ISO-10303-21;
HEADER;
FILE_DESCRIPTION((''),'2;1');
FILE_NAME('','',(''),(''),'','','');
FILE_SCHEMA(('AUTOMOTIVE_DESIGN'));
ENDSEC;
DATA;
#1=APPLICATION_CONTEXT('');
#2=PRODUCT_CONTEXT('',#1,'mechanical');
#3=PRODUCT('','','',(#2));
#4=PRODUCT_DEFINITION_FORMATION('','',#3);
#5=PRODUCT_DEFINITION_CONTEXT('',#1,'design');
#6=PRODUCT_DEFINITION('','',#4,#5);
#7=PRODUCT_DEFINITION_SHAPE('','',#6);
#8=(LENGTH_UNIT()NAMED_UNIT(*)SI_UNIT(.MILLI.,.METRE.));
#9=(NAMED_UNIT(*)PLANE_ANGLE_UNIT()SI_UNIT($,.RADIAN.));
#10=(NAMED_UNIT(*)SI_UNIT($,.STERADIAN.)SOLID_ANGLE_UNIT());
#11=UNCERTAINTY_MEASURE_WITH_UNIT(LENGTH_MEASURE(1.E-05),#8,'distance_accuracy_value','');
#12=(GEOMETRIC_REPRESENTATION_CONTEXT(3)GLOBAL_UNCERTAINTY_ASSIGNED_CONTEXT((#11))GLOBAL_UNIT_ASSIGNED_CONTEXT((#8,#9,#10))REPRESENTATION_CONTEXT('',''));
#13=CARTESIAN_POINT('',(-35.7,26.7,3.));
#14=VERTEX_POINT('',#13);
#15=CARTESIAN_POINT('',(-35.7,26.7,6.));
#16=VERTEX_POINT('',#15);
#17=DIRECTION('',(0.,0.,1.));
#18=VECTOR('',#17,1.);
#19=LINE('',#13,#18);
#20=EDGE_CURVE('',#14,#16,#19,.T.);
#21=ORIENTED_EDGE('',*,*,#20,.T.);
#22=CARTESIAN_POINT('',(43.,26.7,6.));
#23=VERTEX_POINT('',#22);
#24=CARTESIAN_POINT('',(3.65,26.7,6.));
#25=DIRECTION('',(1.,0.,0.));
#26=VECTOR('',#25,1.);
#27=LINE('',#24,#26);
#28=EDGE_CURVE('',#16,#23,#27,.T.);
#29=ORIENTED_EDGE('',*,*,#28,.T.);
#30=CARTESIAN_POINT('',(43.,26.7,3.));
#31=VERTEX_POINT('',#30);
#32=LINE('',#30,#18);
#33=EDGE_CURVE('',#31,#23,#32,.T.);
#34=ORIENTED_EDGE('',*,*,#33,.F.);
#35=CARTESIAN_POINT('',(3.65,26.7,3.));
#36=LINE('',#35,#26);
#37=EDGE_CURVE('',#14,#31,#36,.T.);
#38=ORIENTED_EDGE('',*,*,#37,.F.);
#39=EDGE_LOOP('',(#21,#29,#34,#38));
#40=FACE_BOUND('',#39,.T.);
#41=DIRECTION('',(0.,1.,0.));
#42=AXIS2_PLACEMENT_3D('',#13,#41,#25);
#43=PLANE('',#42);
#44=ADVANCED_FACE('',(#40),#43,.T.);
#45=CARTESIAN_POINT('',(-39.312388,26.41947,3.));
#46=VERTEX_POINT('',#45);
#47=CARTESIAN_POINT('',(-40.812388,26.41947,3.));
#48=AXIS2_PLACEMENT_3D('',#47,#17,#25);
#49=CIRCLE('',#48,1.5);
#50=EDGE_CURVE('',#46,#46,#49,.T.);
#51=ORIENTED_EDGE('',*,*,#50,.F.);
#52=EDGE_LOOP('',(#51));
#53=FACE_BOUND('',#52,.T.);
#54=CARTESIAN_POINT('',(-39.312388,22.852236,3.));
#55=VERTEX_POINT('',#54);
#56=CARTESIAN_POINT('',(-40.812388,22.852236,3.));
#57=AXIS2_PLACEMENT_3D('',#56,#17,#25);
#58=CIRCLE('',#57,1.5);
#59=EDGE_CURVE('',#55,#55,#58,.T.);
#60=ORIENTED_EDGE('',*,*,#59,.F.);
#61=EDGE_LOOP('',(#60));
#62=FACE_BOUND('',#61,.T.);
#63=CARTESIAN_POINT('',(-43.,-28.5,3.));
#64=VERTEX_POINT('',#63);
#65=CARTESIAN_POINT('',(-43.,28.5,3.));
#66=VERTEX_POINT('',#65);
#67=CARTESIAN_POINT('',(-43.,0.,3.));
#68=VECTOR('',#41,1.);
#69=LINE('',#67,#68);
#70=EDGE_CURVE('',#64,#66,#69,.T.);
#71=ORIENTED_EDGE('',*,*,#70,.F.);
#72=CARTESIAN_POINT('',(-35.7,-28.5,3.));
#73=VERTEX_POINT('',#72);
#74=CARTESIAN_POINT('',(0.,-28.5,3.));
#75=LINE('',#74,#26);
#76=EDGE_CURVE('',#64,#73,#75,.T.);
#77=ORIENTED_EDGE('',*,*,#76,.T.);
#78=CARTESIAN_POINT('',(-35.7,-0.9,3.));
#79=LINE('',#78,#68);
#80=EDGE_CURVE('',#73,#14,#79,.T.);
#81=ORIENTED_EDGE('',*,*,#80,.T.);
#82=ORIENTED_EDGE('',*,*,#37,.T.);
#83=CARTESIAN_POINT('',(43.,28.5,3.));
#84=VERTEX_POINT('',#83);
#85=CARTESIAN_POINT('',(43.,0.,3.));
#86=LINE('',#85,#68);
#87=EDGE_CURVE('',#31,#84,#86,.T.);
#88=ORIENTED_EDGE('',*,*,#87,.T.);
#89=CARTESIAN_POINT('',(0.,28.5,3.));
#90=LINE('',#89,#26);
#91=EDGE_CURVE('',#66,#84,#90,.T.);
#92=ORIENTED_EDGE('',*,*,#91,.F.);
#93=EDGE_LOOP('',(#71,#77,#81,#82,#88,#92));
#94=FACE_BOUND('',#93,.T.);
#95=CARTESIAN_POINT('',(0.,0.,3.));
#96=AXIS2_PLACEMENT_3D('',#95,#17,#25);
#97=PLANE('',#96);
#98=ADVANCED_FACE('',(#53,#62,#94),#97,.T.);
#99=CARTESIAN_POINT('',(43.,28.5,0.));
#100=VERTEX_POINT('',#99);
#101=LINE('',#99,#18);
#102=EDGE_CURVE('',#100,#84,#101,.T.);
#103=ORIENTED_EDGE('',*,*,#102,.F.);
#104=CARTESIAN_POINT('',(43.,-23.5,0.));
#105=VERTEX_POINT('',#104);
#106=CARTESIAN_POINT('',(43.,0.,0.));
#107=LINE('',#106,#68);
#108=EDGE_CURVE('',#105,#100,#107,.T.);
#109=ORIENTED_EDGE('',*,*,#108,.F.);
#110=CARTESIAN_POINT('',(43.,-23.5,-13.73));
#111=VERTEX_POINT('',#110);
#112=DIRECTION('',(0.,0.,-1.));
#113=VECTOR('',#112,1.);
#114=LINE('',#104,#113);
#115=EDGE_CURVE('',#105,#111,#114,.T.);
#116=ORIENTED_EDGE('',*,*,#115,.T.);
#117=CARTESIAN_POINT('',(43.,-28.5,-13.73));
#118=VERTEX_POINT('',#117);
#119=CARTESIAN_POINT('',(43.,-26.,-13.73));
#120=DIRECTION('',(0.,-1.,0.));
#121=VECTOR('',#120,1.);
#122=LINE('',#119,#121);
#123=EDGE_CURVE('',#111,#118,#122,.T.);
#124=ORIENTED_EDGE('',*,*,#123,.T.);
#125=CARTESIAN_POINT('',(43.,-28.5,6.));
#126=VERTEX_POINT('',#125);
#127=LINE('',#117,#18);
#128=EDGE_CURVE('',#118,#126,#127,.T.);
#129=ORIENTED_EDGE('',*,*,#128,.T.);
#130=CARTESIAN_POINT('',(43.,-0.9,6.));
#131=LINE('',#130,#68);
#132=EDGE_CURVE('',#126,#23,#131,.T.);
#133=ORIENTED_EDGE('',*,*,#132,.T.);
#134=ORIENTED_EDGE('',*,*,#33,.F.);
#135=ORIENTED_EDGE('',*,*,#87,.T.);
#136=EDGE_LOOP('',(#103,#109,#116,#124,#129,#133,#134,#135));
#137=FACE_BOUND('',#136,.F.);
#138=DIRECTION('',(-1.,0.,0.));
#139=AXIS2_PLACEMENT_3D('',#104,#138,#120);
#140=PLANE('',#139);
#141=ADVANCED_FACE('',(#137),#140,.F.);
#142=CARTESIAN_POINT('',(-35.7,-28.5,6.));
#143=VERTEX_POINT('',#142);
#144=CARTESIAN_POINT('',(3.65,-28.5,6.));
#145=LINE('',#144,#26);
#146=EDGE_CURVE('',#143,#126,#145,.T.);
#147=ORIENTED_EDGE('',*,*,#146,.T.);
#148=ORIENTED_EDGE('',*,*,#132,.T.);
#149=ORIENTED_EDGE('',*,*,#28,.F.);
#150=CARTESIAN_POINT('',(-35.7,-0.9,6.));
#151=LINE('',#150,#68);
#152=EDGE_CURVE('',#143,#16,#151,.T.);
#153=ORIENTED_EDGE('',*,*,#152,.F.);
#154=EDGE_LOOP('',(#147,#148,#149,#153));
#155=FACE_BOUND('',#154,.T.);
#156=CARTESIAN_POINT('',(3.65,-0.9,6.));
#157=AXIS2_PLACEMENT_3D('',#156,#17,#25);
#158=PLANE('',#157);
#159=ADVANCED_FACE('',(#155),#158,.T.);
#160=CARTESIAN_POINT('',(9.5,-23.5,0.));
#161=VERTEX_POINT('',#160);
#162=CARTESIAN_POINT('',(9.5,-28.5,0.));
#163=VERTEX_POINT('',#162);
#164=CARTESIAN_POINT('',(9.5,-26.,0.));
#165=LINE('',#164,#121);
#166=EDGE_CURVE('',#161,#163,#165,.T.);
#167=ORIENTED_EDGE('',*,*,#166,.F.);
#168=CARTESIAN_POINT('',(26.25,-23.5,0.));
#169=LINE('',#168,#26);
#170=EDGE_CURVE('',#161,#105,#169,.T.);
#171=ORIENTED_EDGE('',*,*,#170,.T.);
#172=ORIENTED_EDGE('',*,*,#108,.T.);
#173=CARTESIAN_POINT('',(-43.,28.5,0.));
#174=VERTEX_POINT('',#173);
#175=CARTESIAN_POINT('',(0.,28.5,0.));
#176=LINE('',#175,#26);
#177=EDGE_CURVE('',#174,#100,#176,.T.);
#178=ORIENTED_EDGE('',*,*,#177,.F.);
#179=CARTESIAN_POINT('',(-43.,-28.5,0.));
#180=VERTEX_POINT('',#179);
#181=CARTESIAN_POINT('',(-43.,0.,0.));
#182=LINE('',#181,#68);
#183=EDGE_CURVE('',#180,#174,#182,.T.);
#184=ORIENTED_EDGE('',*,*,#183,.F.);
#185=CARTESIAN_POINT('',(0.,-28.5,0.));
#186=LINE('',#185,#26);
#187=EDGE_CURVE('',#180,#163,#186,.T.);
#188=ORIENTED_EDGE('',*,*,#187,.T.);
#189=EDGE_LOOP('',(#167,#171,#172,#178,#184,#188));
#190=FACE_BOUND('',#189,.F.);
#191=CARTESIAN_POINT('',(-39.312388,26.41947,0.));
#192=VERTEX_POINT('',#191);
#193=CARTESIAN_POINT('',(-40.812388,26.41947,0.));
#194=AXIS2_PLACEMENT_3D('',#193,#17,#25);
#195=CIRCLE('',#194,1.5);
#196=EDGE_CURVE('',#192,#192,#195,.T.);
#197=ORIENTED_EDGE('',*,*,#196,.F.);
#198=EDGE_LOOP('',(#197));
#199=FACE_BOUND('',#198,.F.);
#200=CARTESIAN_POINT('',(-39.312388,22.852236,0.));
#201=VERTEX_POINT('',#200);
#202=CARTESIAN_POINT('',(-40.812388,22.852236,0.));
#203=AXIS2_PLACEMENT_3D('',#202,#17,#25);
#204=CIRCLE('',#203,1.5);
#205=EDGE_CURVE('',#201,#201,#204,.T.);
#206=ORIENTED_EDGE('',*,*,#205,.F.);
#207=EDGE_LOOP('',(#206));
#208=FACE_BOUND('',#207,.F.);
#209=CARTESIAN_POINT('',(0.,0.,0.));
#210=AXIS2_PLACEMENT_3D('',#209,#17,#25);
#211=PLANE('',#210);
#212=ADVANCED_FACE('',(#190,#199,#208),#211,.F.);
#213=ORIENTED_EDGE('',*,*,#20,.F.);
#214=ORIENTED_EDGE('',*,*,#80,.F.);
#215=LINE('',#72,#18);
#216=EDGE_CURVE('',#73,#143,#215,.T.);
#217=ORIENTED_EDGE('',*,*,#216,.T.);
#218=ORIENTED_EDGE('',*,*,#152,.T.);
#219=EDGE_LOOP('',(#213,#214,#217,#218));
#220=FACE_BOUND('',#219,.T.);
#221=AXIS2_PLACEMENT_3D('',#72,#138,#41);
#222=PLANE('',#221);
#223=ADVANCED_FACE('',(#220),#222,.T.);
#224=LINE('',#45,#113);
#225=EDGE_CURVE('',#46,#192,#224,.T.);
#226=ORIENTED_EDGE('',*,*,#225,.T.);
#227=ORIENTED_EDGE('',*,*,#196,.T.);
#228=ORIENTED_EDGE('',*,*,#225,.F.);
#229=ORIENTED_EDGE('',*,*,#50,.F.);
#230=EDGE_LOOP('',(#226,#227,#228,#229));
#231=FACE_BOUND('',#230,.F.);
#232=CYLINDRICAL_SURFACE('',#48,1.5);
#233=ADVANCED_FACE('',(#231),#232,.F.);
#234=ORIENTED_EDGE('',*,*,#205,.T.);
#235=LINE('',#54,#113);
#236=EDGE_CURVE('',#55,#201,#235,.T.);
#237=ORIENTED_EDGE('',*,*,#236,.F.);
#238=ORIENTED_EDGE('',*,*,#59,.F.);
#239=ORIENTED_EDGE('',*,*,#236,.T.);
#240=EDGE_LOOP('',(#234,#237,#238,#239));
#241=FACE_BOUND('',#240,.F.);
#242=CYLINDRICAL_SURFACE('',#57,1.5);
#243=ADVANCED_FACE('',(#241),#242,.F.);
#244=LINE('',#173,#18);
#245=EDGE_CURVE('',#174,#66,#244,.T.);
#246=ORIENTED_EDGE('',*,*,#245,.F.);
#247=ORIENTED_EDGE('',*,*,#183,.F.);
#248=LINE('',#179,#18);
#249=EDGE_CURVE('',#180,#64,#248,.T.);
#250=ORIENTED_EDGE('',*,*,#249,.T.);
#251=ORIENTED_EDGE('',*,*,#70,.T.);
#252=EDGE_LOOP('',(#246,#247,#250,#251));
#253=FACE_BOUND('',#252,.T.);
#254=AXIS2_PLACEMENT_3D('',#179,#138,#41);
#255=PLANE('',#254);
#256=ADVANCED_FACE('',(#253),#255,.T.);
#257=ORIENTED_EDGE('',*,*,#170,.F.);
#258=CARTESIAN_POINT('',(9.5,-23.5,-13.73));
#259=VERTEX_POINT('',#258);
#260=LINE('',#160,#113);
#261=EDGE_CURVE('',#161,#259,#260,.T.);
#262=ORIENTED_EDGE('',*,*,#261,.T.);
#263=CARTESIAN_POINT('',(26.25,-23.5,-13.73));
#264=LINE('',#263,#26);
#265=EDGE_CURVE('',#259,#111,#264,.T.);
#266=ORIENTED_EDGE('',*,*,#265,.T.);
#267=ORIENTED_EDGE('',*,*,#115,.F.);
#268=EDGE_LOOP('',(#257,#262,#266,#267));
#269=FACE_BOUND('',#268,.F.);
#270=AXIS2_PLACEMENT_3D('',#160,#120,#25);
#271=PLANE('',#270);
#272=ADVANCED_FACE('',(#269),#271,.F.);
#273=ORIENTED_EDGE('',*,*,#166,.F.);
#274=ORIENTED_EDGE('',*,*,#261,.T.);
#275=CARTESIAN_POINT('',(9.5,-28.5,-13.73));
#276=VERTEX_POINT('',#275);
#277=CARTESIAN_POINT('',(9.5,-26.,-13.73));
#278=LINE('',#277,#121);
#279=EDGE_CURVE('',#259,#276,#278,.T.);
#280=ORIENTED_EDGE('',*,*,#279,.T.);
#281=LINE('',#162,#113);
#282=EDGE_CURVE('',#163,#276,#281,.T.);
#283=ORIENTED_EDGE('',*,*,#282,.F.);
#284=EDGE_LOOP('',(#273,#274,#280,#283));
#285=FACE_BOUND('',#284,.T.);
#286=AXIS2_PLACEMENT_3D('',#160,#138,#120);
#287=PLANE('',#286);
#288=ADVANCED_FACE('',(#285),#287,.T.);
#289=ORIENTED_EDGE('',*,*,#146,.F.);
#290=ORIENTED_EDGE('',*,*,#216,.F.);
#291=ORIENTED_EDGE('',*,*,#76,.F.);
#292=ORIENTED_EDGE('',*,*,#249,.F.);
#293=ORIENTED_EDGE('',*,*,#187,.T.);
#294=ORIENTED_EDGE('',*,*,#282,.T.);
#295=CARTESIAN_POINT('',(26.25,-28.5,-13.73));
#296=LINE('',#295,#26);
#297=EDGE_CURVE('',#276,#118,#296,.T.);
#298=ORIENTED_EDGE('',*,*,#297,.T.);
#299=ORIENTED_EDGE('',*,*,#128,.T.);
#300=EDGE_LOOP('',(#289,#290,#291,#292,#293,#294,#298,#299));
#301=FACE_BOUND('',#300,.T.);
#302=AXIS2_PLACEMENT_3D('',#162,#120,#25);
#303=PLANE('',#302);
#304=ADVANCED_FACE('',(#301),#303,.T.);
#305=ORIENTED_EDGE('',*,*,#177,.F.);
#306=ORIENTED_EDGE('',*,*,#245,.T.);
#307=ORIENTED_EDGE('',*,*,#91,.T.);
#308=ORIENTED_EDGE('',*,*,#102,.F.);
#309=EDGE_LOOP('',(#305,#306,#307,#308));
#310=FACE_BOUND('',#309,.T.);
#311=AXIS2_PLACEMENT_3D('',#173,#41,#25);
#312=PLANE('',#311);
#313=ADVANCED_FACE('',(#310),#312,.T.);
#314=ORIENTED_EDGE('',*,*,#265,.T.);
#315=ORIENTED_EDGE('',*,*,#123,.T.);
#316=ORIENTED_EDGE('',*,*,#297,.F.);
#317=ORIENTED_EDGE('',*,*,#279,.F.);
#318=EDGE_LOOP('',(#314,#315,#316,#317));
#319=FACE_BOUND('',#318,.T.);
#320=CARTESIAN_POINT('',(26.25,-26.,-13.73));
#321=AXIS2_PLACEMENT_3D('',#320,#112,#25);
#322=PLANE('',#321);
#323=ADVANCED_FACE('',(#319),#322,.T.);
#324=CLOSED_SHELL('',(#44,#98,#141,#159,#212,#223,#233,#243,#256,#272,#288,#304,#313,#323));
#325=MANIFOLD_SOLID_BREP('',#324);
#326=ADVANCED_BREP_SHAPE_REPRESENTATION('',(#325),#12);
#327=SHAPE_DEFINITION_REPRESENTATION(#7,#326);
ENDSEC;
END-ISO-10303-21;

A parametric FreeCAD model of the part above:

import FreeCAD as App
import Part
import Sketcher

V = App.Vector


def add_polygon(sketch, points):
    """Adds a closed chain of lines whose ends are joined by coincident constraints."""
    first, n = sketch.GeometryCount, len(points)
    for a, b in zip(points, points[1:] + points[:1]):
        sketch.addGeometry(Part.LineSegment(App.Vector(*a, 0), App.Vector(*b, 0)), False)
    for i in range(n):
        sketch.addConstraint(Sketcher.Constraint("Coincident", first + i, 2, first + (i + 1) % n, 1))

doc = App.newDocument("Part")
body = doc.addObject("PartDesign::Body", "Body")

sketch1 = body.newObject("Sketcher::SketchObject", "Sketch")
sketch1.AttachmentSupport = (doc.getObject("XY_Plane"), [""])
sketch1.MapMode = "FlatFace"
add_polygon(sketch1, [(-43, 28.5), (-43, -28.5), (43, -28.5), (43, 28.5)])
sketch1.addConstraint(Sketcher.Constraint("Vertical", 0))
sketch1.addConstraint(Sketcher.Constraint("Horizontal", 1))
sketch1.addConstraint(Sketcher.Constraint("Vertical", 2))
sketch1.addConstraint(Sketcher.Constraint("Horizontal", 3))
sketch1.addConstraint(Sketcher.Constraint("Symmetric", 0, 2, 2, 2, -1, 1))
sketch1.addConstraint(Sketcher.Constraint("DistanceX", 1, 1, 1, 2, 86.0))
sketch1.addConstraint(Sketcher.Constraint("DistanceY", 0, 2, 0, 1, 57.0))
pad1 = body.newObject("PartDesign::Pad", "Pad")
pad1.Profile = sketch1
pad1.Length = 3

sketch2 = body.newObject("Sketcher::SketchObject", "Sketch001")
sketch2.AttachmentSupport = (doc.getObject("XY_Plane"), [""])
sketch2.MapMode = "FlatFace"
sketch2.AttachmentOffset = App.Placement(V(0, 0, 3), App.Rotation())
add_polygon(sketch2, [(-35.7, 26.7), (-35.7, -28.5), (43, -28.5), (43, 26.7)])
sketch2.addConstraint(Sketcher.Constraint("Vertical", 0))
sketch2.addConstraint(Sketcher.Constraint("Horizontal", 1))
sketch2.addConstraint(Sketcher.Constraint("Vertical", 2))
sketch2.addConstraint(Sketcher.Constraint("Horizontal", 3))
sketch2.addConstraint(Sketcher.Constraint("DistanceX", 1, 1, 1, 2, 78.7))
sketch2.addConstraint(Sketcher.Constraint("DistanceY", 0, 2, 0, 1, 55.2))
sketch2.addConstraint(Sketcher.Constraint("DistanceX", -1, 1, 1, 2, 43.0))
sketch2.addConstraint(Sketcher.Constraint("DistanceY", 0, 2, -1, 1, 28.5))
pad2 = body.newObject("PartDesign::Pad", "Pad001")
pad2.Profile = sketch2
pad2.Length = 3

sketch3 = body.newObject("Sketcher::SketchObject", "Sketch002")
sketch3.AttachmentSupport = (doc.getObject("XY_Plane"), [""])
sketch3.MapMode = "FlatFace"
sketch3.AttachmentOffset = App.Placement(V(0, 0, 3), App.Rotation())
sketch3.addGeometry(Part.Circle(V(-40.812388, 26.41947, 0), V(0, 0, 1), 1.5), False)
sketch3.addGeometry(Part.Circle(V(-40.812388, 22.852236, 0), V(0, 0, 1), 1.5), False)
sketch3.addConstraint(Sketcher.Constraint("Equal", 0, 1))
sketch3.addConstraint(Sketcher.Constraint("Vertical", 0, 3, 1, 3))
sketch3.addConstraint(Sketcher.Constraint("Diameter", 0, 3.0))
sketch3.addConstraint(Sketcher.Constraint("DistanceY", -1, 1, 0, 3, 26.41947))
sketch3.addConstraint(Sketcher.Constraint("DistanceX", 0, 3, -1, 1, 40.812388))
sketch3.addConstraint(Sketcher.Constraint("DistanceY", -1, 1, 1, 3, 22.852236))
pocket1 = body.newObject("PartDesign::Pocket", "Pocket")
pocket1.Profile = sketch3
pocket1.Length = 25

sketch4 = body.newObject("Sketcher::SketchObject", "Sketch003")
sketch4.AttachmentSupport = (doc.getObject("XY_Plane"), [""])
sketch4.MapMode = "FlatFace"
add_polygon(sketch4, [(9.5, -28.5), (9.5, -23.5), (43, -23.5), (43, -28.5)])
sketch4.addConstraint(Sketcher.Constraint("Vertical", 0))
sketch4.addConstraint(Sketcher.Constraint("Horizontal", 1))
sketch4.addConstraint(Sketcher.Constraint("Vertical", 2))
sketch4.addConstraint(Sketcher.Constraint("Horizontal", 3))
sketch4.addConstraint(Sketcher.Constraint("DistanceY", 0, 1, 0, 2, 5.0))
sketch4.addConstraint(Sketcher.Constraint("DistanceX", 1, 1, 1, 2, 33.5))
sketch4.addConstraint(Sketcher.Constraint("DistanceX", -1, 1, 1, 2, 43.0))
sketch4.addConstraint(Sketcher.Constraint("DistanceY", 0, 2, -1, 1, 23.5))
pad3 = body.newObject("PartDesign::Pad", "Pad002")
pad3.Profile = sketch4
pad3.Length = 13.73
pad3.Reversed = True

doc.recompute()
